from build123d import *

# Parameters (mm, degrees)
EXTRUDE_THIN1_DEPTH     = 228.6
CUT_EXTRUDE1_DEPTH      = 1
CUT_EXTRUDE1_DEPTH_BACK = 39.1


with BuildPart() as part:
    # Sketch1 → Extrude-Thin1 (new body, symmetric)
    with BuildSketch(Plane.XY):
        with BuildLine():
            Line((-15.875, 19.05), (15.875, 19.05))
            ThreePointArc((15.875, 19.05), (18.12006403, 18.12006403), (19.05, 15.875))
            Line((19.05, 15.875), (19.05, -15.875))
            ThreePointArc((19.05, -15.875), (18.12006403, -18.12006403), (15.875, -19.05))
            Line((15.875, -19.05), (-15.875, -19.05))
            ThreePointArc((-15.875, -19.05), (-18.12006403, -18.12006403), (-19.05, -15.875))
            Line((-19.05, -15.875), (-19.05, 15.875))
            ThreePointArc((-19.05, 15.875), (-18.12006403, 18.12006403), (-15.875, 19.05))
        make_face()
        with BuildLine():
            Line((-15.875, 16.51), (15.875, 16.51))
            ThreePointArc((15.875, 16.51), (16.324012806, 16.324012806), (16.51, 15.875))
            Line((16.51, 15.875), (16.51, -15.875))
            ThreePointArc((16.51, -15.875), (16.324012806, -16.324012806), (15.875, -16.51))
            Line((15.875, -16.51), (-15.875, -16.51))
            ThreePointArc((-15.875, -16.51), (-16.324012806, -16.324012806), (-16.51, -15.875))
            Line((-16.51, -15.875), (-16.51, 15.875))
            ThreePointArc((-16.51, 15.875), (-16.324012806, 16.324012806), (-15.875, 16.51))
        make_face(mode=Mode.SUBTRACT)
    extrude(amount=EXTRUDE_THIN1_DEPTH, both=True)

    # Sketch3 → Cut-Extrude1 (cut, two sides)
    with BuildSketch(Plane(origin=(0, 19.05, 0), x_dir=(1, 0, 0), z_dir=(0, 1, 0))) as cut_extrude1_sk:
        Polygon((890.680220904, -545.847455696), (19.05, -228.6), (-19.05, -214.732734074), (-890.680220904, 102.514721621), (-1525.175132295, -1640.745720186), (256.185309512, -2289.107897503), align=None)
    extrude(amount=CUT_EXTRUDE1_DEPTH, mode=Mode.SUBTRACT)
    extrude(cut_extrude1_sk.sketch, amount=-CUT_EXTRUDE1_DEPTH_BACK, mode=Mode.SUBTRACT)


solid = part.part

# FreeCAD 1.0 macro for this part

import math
import FreeCAD as App
import Part
import Sketcher
from FreeCAD import Vector
Q = App.Units.Quantity


def add_polygon(sketch, points):
    """Adds a closed chain of lines whose ends are joined by coincident constraints."""
    first, n = sketch.GeometryCount, len(points)
    for a, b in zip(points, points[1:] + points[:1]):
        sketch.addGeometry(Part.LineSegment(App.Vector(*a, 0), App.Vector(*b, 0)), False)
    for i in range(n):
        sketch.addConstraint(Sketcher.Constraint("Coincident", first + i, 2, first + (i + 1) % n, 1))

doc = App.newDocument("Part")
params = doc.addObject("Spreadsheet::Sheet", "Params")
for row, (alias, value) in enumerate([
    ("sketch1_radius", "0.125 in"),
    ("sketch1_radius2", "0.025 in"),
    ("sketch1_width", "1.25 in"),
    ("pad1_length", "18 in"),
], start=1):
    params.set(f"A{row}", alias)
    params.set(f"B{row}", "=" + value)
    params.setAlias(f"B{row}", alias)

body = doc.addObject("PartDesign::Body", "Body")

sketch1 = body.newObject("Sketcher::SketchObject", "Sketch")
sketch1.AttachmentSupport = (doc.getObject("XY_Plane"), [""])
sketch1.MapMode = "FlatFace"
sketch1.addGeometry(Part.LineSegment(Vector(15.875, 19.05, 0), Vector(-15.875, 19.05, 0)), False)
sketch1.addGeometry(Part.ArcOfCircle(Part.Circle(Vector(-15.875, 15.875, 0), Vector(0, 0, 1), 3.175), math.radians(90), math.radians(180)), False)
sketch1.addGeometry(Part.LineSegment(Vector(-19.05, 15.875, 0), Vector(-19.05, -15.875, 0)), False)
sketch1.addGeometry(Part.ArcOfCircle(Part.Circle(Vector(-15.875, -15.875, 0), Vector(0, 0, 1), 3.175), math.radians(-180), math.radians(-90)), False)
sketch1.addGeometry(Part.LineSegment(Vector(-15.875, -19.05, 0), Vector(15.875, -19.05, 0)), False)
sketch1.addGeometry(Part.ArcOfCircle(Part.Circle(Vector(15.875, -15.875, 0), Vector(0, 0, 1), 3.175), math.radians(-90), math.radians(0)), False)
sketch1.addGeometry(Part.LineSegment(Vector(19.05, -15.875, 0), Vector(19.05, 15.875, 0)), False)
sketch1.addGeometry(Part.ArcOfCircle(Part.Circle(Vector(15.875, 15.875, 0), Vector(0, 0, 1), 3.175), math.radians(0), math.radians(90)), False)
sketch1.addGeometry(Part.LineSegment(Vector(-15.875, 16.51, 0), Vector(15.875, 16.51, 0)), False)
sketch1.addGeometry(Part.ArcOfCircle(Part.Circle(Vector(15.875, 15.875, 0), Vector(0, 0, 1), 0.635), math.radians(0), math.radians(90)), False)
sketch1.addGeometry(Part.LineSegment(Vector(16.51, 15.875, 0), Vector(16.51, -15.875, 0)), False)
sketch1.addGeometry(Part.ArcOfCircle(Part.Circle(Vector(15.875, -15.875, 0), Vector(0, 0, 1), 0.635), math.radians(-90), math.radians(0)), False)
sketch1.addGeometry(Part.LineSegment(Vector(15.875, -16.51, 0), Vector(-15.875, -16.51, 0)), False)
sketch1.addGeometry(Part.ArcOfCircle(Part.Circle(Vector(-15.875, -15.875, 0), Vector(0, 0, 1), 0.635), math.radians(180), math.radians(270)), False)
sketch1.addGeometry(Part.LineSegment(Vector(-16.51, -15.875, 0), Vector(-16.51, 15.875, 0)), False)
sketch1.addGeometry(Part.ArcOfCircle(Part.Circle(Vector(-15.875, 15.875, 0), Vector(0, 0, 1), 0.635), math.radians(90), math.radians(180)), False)
sketch1.addConstraint(Sketcher.Constraint("Tangent", 0, 2, 1, 1))
sketch1.addConstraint(Sketcher.Constraint("Tangent", 1, 2, 2, 1))
sketch1.addConstraint(Sketcher.Constraint("Tangent", 2, 2, 3, 1))
sketch1.addConstraint(Sketcher.Constraint("Tangent", 3, 2, 4, 1))
sketch1.addConstraint(Sketcher.Constraint("Tangent", 4, 2, 5, 1))
sketch1.addConstraint(Sketcher.Constraint("Tangent", 5, 2, 6, 1))
sketch1.addConstraint(Sketcher.Constraint("Tangent", 6, 2, 7, 1))
sketch1.addConstraint(Sketcher.Constraint("Tangent", 7, 2, 0, 1))
sketch1.addConstraint(Sketcher.Constraint("Tangent", 8, 2, 9, 2))
sketch1.addConstraint(Sketcher.Constraint("Tangent", 9, 1, 10, 1))
sketch1.addConstraint(Sketcher.Constraint("Tangent", 10, 2, 11, 2))
sketch1.addConstraint(Sketcher.Constraint("Tangent", 11, 1, 12, 1))
sketch1.addConstraint(Sketcher.Constraint("Tangent", 12, 2, 13, 2))
sketch1.addConstraint(Sketcher.Constraint("Tangent", 13, 1, 14, 1))
sketch1.addConstraint(Sketcher.Constraint("Tangent", 14, 2, 15, 2))
sketch1.addConstraint(Sketcher.Constraint("Tangent", 15, 1, 8, 1))
sketch1.addConstraint(Sketcher.Constraint("Horizontal", 0))
sketch1.addConstraint(Sketcher.Constraint("Vertical", 2))
sketch1.addConstraint(Sketcher.Constraint("Horizontal", 4))
sketch1.addConstraint(Sketcher.Constraint("Vertical", 6))
sketch1.addConstraint(Sketcher.Constraint("Horizontal", 8))
sketch1.addConstraint(Sketcher.Constraint("Vertical", 10))
sketch1.addConstraint(Sketcher.Constraint("Horizontal", 12))
sketch1.addConstraint(Sketcher.Constraint("Vertical", 14))
sketch1.addConstraint(Sketcher.Constraint("Coincident", 9, 3, 7, 3))
sketch1.addConstraint(Sketcher.Constraint("Coincident", 11, 3, 5, 3))
sketch1.addConstraint(Sketcher.Constraint("Coincident", 13, 3, 3, 3))
sketch1.addConstraint(Sketcher.Constraint("Equal", 1, 3))
sketch1.addConstraint(Sketcher.Constraint("Equal", 3, 5))
sketch1.addConstraint(Sketcher.Constraint("Equal", 5, 7))
sketch1.addConstraint(Sketcher.Constraint("Equal", 13, 15))
sketch1.addConstraint(Sketcher.Constraint("Symmetric", 1, 3, 5, 3, -1, 1))
sketch1.addConstraint(Sketcher.Constraint("Equal", 12, 2))
sketch1.addConstraint(Sketcher.Constraint("Radius", 1, Q("0.125 in")))
sketch1.addConstraint(Sketcher.Constraint("Radius", 9, Q("0.025 in")))
sketch1.addConstraint(Sketcher.Constraint("DistanceX", 0, 2, 0, 1, Q("1.25 in")))
sketch1.setExpression("Constraints[33]", "Params.sketch1_radius")
sketch1.setExpression("Constraints[34]", "Params.sketch1_radius2")
sketch1.setExpression("Constraints[35]", "Params.sketch1_width")
pad1 = body.newObject("PartDesign::Pad", "Pad")
pad1.Profile = sketch1
pad1.setExpression("Length", "Params.pad1_length")
pad1.Midplane = True

sketch2 = body.newObject("Sketcher::SketchObject", "Sketch001")
sketch2.AttachmentSupport = (doc.getObject("XZ_Plane"), [""])
sketch2.MapMode = "FlatFace"
sketch2.AttachmentOffset = App.Placement(Vector(0, 0, -0.75 * 25.4), App.Rotation())
add_polygon(sketch2, [(890.680221, 545.847456), (19.05, 228.6), (-19.05, 214.732734), (-890.680221, -102.514722), (-1525.175132, 1640.74572), (256.18531, 2289.107898)])
sketch2.addConstraint(Sketcher.Constraint("Parallel", 0, 1))
sketch2.addConstraint(Sketcher.Constraint("Parallel", 1, 2))
sketch2.addConstraint(Sketcher.Constraint("Perpendicular", 2, 3))
sketch2.addConstraint(Sketcher.Constraint("Perpendicular", 3, 4))
sketch2.addConstraint(Sketcher.Constraint("Perpendicular", 4, 5))
sketch2.addConstraint(Sketcher.Constraint("Equal", 0, 2))
sketch2.addConstraint(Sketcher.Constraint("DistanceY", -1, 1, 0, 2, Q("9 in")))
sketch2.addConstraint(Sketcher.Constraint("Angle", 0, Q("-160 deg")))
sketch2.addConstraint(Sketcher.Constraint("DistanceX", 1, 2, 0, 2, Q("1.5 in")))
sketch2.addConstraint(Sketcher.Constraint("DistanceX", -1, 1, 0, 2, Q("0.75 in")))
sketch2.addConstraint(Sketcher.Constraint("DistanceX", 2, 2, -1, 1, 890.680221))
sketch2.addConstraint(Sketcher.Constraint("DistanceY", -1, 1, 3, 2, 1640.74572))
pocket1 = body.newObject("PartDesign::Pocket", "Pocket")
pocket1.Profile = sketch2
pocket1.Type = "ThroughAll"
pocket1.Midplane = True

doc.recompute()
